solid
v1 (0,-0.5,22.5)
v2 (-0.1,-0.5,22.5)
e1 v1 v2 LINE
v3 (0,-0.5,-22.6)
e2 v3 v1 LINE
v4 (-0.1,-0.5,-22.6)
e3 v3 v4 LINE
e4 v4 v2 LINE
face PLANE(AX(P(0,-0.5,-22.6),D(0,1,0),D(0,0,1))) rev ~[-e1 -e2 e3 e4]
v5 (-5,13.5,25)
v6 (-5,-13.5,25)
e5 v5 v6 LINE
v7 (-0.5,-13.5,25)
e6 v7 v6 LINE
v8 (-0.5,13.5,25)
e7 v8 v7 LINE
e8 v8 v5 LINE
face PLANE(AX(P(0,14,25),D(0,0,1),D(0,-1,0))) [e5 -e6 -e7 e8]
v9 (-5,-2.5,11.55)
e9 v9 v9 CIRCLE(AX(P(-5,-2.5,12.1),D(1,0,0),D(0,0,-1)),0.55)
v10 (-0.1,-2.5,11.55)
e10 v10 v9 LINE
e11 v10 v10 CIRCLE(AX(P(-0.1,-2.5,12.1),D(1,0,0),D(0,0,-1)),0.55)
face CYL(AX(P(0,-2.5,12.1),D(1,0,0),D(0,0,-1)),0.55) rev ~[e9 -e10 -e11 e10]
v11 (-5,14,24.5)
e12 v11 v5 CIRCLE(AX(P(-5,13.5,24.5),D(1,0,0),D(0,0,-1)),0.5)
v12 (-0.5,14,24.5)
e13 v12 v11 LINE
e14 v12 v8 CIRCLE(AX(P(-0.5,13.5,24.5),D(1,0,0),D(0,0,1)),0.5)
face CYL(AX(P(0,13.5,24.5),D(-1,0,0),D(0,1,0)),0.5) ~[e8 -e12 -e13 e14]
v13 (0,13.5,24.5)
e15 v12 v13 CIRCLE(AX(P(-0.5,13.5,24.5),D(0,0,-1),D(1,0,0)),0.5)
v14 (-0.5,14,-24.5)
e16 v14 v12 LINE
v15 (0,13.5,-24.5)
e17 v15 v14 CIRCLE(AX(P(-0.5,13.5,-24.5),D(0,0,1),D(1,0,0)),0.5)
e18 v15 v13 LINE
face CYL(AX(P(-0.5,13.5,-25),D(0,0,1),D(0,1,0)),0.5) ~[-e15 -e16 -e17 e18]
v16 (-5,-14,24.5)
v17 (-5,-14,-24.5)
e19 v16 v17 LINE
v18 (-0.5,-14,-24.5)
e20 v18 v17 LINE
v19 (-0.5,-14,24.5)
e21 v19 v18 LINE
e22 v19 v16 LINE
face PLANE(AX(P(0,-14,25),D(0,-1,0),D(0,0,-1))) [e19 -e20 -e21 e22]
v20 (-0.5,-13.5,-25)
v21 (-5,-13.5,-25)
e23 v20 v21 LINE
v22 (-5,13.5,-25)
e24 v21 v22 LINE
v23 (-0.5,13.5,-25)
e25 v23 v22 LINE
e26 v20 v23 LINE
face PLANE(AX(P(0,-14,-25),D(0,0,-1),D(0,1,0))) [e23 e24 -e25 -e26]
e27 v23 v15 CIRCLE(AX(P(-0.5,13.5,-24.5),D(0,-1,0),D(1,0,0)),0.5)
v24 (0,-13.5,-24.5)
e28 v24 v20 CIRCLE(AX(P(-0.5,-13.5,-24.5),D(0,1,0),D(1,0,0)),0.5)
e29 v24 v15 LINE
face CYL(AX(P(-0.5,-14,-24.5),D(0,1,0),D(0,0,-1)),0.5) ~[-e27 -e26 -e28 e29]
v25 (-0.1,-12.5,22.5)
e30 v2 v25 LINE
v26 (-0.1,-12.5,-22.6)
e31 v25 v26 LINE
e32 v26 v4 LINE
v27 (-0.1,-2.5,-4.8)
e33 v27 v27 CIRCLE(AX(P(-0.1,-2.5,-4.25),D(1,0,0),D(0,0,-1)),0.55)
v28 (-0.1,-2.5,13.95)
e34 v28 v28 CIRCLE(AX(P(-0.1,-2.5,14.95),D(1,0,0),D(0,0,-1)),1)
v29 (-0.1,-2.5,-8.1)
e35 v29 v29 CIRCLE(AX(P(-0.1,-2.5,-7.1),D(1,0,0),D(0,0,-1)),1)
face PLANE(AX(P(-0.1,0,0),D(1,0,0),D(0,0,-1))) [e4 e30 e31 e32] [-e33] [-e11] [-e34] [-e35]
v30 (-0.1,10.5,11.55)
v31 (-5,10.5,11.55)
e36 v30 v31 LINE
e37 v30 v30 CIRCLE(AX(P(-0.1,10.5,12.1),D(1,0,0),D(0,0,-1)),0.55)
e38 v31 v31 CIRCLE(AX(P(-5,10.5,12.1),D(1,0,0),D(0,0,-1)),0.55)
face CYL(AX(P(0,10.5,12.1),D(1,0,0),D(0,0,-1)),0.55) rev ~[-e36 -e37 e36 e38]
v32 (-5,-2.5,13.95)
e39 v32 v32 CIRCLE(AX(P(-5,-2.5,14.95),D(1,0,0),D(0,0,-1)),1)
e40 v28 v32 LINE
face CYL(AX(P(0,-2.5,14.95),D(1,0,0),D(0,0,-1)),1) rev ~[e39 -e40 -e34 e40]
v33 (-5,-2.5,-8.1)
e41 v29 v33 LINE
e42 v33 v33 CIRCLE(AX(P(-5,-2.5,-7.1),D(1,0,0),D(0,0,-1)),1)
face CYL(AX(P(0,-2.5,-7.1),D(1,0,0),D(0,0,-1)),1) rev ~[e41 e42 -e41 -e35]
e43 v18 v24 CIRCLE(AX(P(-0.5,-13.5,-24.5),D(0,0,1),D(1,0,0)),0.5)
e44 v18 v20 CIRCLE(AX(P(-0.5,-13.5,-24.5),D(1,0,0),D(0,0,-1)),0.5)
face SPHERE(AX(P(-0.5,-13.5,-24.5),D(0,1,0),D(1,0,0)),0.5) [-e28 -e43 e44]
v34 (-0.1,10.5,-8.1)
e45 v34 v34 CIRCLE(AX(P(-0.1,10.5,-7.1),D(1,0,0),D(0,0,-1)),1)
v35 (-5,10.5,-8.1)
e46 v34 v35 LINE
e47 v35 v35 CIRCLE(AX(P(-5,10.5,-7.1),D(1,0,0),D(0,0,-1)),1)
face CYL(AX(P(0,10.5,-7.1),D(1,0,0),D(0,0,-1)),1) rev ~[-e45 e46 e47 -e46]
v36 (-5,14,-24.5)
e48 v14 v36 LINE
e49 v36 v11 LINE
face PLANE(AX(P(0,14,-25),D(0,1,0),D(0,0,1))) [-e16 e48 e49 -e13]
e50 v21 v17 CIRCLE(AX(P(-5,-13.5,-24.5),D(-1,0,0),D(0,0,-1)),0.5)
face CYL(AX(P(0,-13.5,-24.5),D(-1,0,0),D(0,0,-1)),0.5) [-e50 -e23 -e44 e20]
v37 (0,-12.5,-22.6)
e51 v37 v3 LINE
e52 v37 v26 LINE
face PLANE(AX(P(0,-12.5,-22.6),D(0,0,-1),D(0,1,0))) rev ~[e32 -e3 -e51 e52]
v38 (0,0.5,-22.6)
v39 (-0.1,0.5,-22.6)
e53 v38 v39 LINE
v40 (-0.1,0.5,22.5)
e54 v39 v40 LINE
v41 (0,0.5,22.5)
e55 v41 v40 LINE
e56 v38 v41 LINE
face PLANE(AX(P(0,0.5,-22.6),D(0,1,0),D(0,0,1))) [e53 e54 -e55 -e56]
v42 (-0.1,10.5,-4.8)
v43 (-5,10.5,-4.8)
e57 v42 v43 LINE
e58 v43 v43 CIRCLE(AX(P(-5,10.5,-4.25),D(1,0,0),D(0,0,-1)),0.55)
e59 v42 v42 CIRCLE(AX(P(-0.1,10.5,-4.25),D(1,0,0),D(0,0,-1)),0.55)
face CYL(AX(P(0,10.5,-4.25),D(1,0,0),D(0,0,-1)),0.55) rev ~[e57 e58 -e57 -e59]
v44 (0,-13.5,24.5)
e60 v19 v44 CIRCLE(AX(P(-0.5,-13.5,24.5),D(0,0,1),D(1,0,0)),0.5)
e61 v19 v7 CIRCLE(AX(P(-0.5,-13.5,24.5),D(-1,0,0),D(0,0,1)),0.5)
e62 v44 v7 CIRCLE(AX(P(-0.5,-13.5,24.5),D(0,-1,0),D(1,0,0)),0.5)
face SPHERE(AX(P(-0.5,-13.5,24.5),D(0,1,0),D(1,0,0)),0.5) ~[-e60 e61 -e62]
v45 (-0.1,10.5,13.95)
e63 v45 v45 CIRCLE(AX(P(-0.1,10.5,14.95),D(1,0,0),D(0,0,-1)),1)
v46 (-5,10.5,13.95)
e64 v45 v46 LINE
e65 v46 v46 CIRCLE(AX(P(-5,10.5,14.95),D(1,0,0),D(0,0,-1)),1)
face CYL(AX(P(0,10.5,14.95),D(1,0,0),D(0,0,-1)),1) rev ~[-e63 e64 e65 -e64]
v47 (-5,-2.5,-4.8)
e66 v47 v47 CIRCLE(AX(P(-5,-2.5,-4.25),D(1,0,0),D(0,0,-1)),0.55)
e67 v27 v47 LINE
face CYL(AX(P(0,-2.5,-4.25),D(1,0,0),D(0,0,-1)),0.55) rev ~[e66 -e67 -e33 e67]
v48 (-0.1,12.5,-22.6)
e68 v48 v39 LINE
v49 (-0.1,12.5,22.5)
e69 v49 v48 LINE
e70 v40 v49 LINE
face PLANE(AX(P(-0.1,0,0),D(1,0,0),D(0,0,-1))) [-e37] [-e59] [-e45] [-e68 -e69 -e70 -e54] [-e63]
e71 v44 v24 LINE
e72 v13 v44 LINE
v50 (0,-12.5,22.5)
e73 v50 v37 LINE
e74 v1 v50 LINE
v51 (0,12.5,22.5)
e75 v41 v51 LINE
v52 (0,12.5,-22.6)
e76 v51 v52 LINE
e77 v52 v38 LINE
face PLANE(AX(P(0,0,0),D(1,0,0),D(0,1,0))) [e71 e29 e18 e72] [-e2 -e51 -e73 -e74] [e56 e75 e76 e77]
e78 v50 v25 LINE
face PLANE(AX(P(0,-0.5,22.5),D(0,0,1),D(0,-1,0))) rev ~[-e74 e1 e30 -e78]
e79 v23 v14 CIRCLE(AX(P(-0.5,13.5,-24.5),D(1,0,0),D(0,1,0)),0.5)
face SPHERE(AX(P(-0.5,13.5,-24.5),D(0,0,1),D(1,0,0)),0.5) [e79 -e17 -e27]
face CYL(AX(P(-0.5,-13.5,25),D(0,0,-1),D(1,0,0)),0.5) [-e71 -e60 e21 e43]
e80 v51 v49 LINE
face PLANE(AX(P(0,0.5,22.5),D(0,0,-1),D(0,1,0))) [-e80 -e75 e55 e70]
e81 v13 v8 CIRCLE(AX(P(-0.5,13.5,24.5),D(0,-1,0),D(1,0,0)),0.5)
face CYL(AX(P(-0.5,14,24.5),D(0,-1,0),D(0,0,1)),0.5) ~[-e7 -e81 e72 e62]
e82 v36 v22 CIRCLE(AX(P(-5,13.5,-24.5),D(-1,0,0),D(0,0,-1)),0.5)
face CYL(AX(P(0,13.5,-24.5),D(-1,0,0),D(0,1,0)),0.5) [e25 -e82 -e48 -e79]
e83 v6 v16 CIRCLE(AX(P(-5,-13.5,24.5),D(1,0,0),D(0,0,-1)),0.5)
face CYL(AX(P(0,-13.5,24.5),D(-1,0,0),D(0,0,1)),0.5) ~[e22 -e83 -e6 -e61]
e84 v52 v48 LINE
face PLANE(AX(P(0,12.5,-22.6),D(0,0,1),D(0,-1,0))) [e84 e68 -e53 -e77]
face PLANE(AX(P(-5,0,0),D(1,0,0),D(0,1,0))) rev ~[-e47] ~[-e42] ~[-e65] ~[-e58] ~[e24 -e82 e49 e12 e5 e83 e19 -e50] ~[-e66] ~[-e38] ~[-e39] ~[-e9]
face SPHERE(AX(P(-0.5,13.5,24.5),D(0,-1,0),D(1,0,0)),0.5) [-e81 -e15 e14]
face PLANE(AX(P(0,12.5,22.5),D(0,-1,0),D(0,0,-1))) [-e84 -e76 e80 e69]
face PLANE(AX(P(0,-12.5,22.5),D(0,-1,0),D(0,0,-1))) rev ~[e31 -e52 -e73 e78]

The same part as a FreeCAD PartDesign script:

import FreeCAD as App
import Part
import Sketcher


def edges_at(feature, points):
    """Names of the edges that pass closest to the given points."""
    edges = feature.Shape.Edges
    near = lambda p: min(range(len(edges)), key=lambda i: edges[i].distToShape(Part.Vertex(*p))[0])
    return sorted({f"Edge{near(p) + 1}" for p in points})


def add_polygon(sketch, points):
    """Adds a closed chain of lines whose ends are joined by coincident constraints."""
    first, n = sketch.GeometryCount, len(points)
    for a, b in zip(points, points[1:] + points[:1]):
        sketch.addGeometry(Part.LineSegment(App.Vector(*a, 0), App.Vector(*b, 0)), False)
    for i in range(n):
        sketch.addConstraint(Sketcher.Constraint("Coincident", first + i, 2, first + (i + 1) % n, 1))

doc = App.newDocument("Part")
params = doc.addObject("Spreadsheet::Sheet", "Params")
for row, (alias, value) in enumerate([
    ("sketch1_width", "28 mm"),
    ("sketch1_height", "50 mm"),
    ("pad1_length", "5 mm"),
    ("sketch2_diameter", "2 mm"),
    ("sketch2_diameter2", "1.1 mm"),
    ("pocket1_length", "5 mm"),
    ("fillet_radius", "0.5 mm"),
    ("sketch3_diameter", "2 mm"),
    ("sketch3_height", "45.1 mm"),
    ("pocket2_length", "0.1 mm"),
], start=1):
    params.set(f"A{row}", alias)
    params.set(f"B{row}", "=" + value)
    params.setAlias(f"B{row}", alias)

body = doc.addObject("PartDesign::Body", "Body")

# Sketch on YZ plane
sketch1 = body.newObject("Sketcher::SketchObject", "Sketch")
sketch1.AttachmentSupport = (doc.getObject("YZ_Plane"), [""])
sketch1.MapMode = "FlatFace"
add_polygon(sketch1, [(14, -25), (14, 25), (-14, 25), (-14, -25)])  # lines 0-3
sketch1.addConstraint([
    Sketcher.Constraint("Vertical", 0),
    Sketcher.Constraint("Horizontal", 1),
    Sketcher.Constraint("Vertical", 2),
    Sketcher.Constraint("Horizontal", 3),
    Sketcher.Constraint("Symmetric", 0, 2, 2, 2, -1, 1),
    Sketcher.Constraint("DistanceX", 1, 2, 1, 1, 28.0),
    Sketcher.Constraint("DistanceY", 0, 1, 0, 2, 50.0),
])
sketch1.setExpression("Constraints[9]", "Params.sketch1_width")
sketch1.setExpression("Constraints[10]", "Params.sketch1_height")
pad1 = body.newObject("PartDesign::Pad", "Pad")
pad1.Profile = sketch1
pad1.setExpression("Length", "Params.pad1_length")
pad1.Reversed = True

# Sketch on YZ plane
sketch2 = body.newObject("Sketcher::SketchObject", "Sketch001")
sketch2.AttachmentSupport = (doc.getObject("YZ_Plane"), [""])
sketch2.MapMode = "FlatFace"
sketch2.addGeometry([
    Part.Circle(App.Vector(10.5, 12.1, 0), App.Vector(0, 0, 1), 0.6),  # 0
    Part.Circle(App.Vector(10.5, 14.9, 0), App.Vector(0, 0, 1), 1),  # 1
    Part.Circle(App.Vector(10.5, -4.2, 0), App.Vector(0, 0, 1), 0.6),  # 2
    Part.Circle(App.Vector(10.5, -7.1, 0), App.Vector(0, 0, 1), 1),  # 3
    Part.Circle(App.Vector(-2.5, 12.1, 0), App.Vector(0, 0, 1), 0.6),  # 4
    Part.Circle(App.Vector(-2.5, 14.9, 0), App.Vector(0, 0, 1), 1),  # 5
    Part.Circle(App.Vector(-2.5, -4.2, 0), App.Vector(0, 0, 1), 0.6),  # 6
    Part.Circle(App.Vector(-2.5, -7.1, 0), App.Vector(0, 0, 1), 1),  # 7
], False)
sketch2.addConstraint([
    Sketcher.Constraint("Equal", 0, 2),
    Sketcher.Constraint("Equal", 1, 3),
    Sketcher.Constraint("Equal", 2, 4),
    Sketcher.Constraint("Equal", 3, 5),
    Sketcher.Constraint("Equal", 4, 6),
    Sketcher.Constraint("Equal", 5, 7),
    Sketcher.Constraint("Horizontal", 0, 3, 4, 3),
    Sketcher.Constraint("Horizontal", 1, 3, 5, 3),
    Sketcher.Constraint("Horizontal", 2, 3, 6, 3),
    Sketcher.Constraint("Horizontal", 3, 3, 7, 3),
    Sketcher.Constraint("Vertical", 0, 3, 1, 3),
    Sketcher.Constraint("Vertical", 1, 3, 2, 3),
    Sketcher.Constraint("Vertical", 2, 3, 3, 3),
    Sketcher.Constraint("Vertical", 4, 3, 5, 3),
    Sketcher.Constraint("Vertical", 5, 3, 6, 3),
    Sketcher.Constraint("Vertical", 6, 3, 7, 3),
    Sketcher.Constraint("Diameter", 1, 2.0),
    Sketcher.Constraint("Diameter", 0, 1.1),
    Sketcher.Constraint("DistanceY", 0, 3, 1, 3, 2.85),
    Sketcher.Constraint("DistanceY", 2, 3, 0, 3, 16.35),
    Sketcher.Constraint("DistanceY", 3, 3, 2, 3, 2.85),
    Sketcher.Constraint("DistanceX", 4, 3, 0, 3, 13.0),
    Sketcher.Constraint("DistanceX", -1, 1, 0, 3, 10.5),
    Sketcher.Constraint("DistanceY", -1, 1, 0, 3, 12.1),
])
sketch2.setExpression("Constraints[16]", "Params.sketch2_diameter")
sketch2.setExpression("Constraints[17]", "Params.sketch2_diameter2")
pocket1 = body.newObject("PartDesign::Pocket", "Pocket")
pocket1.Profile = sketch2
pocket1.setExpression("Length", "Params.pocket1_length")
doc.recompute()

fillet = body.newObject("PartDesign::Fillet", "Fillet")
fillet.Base = (pocket1, edges_at(pocket1, [
    (0, 0, 25),
    (0, 14, 0),
    (0, 0, -25),
    (0, -14, 0),
    (-2.5, 14, 25),
    (-2.5, -14, 25),
    (-2.5, 14, -25),
    (-2.5, -14, -25),
]))
fillet.setExpression("Radius", "Params.fillet_radius")

# Sketch on YZ plane
sketch3 = body.newObject("Sketcher::SketchObject", "Sketch002")
sketch3.AttachmentSupport = (doc.getObject("YZ_Plane"), [""])
sketch3.MapMode = "FlatFace"
add_polygon(sketch3, [(12.5, -22.6), (12.5, 22.5), (0.5, 22.5), (0.5, -22.6)])  # lines 0-3
sketch3.addGeometry(Part.Circle(App.Vector(10.5, 14.9, 0), App.Vector(0, 0, 1), 1), False)  # 4
add_polygon(sketch3, [(-0.5, 22.5), (-12.5, 22.5), (-12.5, -22.6), (-0.5, -22.6)])  # lines 5-8
sketch3.addConstraint([
    Sketcher.Constraint("Vertical", 0),
    Sketcher.Constraint("Horizontal", 1),
    Sketcher.Constraint("Vertical", 2),
    Sketcher.Constraint("Horizontal", 3),
    Sketcher.Constraint("Horizontal", 5),
    Sketcher.Constraint("Vertical", 6),
    Sketcher.Constraint("Horizontal", 7),
    Sketcher.Constraint("Vertical", 8),
    Sketcher.Constraint("Symmetric", 0, 2, 5, 2, -2),
    Sketcher.Constraint("Symmetric", 2, 2, 7, 2, -2),
    Sketcher.Constraint("Diameter", 4, 2.0),
    Sketcher.Constraint("DistanceY", 0, 1, 0, 2, 45.1),
    Sketcher.Constraint("DistanceX", 4, 3, 0, 2, 2.0),
    Sketcher.Constraint("DistanceX", 1, 2, 4, 3, 10.0),
    Sketcher.Constraint("DistanceY", 4, 3, 0, 2, 7.55),
    Sketcher.Constraint("DistanceX", 5, 2, 1, 2, 13.0),
    Sketcher.Constraint("DistanceY", -1, 1, 0, 2, 22.5),
])
sketch3.setExpression("Constraints[18]", "Params.sketch3_diameter")
sketch3.setExpression("Constraints[19]", "Params.sketch3_height")
pocket2 = body.newObject("PartDesign::Pocket", "Pocket001")
pocket2.Profile = sketch3
pocket2.setExpression("Length", "Params.pocket2_length")

doc.recompute()
